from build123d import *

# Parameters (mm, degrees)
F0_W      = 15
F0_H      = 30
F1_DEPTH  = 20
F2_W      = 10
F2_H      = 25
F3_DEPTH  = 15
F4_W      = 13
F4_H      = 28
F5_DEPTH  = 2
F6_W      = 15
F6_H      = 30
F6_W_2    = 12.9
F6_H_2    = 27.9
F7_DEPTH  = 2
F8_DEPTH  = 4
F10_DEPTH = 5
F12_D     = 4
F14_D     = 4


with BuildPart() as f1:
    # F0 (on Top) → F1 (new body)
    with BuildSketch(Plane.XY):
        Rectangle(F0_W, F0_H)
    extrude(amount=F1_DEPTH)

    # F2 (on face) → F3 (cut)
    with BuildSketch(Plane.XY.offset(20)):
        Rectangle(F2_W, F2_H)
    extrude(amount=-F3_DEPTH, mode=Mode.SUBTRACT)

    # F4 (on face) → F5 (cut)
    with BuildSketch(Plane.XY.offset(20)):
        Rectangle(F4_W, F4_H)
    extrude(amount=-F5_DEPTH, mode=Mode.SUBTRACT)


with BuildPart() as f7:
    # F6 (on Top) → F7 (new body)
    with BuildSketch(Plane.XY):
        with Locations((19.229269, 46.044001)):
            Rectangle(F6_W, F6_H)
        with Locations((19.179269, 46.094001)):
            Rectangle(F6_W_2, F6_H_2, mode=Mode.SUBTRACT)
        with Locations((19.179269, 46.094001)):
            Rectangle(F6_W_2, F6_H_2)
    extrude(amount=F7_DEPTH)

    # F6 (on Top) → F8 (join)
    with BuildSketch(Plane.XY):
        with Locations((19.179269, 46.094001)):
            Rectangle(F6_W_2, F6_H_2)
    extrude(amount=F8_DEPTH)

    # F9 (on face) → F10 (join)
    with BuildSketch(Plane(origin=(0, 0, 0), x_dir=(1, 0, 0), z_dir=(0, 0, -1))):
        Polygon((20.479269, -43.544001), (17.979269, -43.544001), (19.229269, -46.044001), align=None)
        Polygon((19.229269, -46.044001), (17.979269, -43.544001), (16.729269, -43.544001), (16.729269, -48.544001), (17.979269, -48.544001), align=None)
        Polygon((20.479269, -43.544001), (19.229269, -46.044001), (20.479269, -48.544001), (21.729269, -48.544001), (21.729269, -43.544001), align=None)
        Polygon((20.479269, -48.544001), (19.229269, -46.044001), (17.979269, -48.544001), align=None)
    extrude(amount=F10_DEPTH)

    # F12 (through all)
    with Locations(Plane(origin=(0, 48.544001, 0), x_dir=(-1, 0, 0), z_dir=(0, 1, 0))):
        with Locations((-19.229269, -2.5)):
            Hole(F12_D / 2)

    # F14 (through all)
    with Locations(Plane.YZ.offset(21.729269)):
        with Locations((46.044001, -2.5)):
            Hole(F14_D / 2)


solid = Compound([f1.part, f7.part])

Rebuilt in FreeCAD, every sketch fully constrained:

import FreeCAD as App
import Part
import Sketcher
Q = App.Units.Quantity


def add_polygon(sketch, points):
    """Adds a closed chain of lines whose ends are joined by coincident constraints."""
    first, n = sketch.GeometryCount, len(points)
    for a, b in zip(points, points[1:] + points[:1]):
        sketch.addGeometry(Part.LineSegment(App.Vector(*a, 0), App.Vector(*b, 0)), False)
    for i in range(n):
        sketch.addConstraint(Sketcher.Constraint("Coincident", first + i, 2, first + (i + 1) % n, 1))

doc = App.newDocument("Part")
body = doc.addObject("PartDesign::Body", "Body")

sketch1 = body.newObject("Sketcher::SketchObject", "Sketch")
sketch1.AttachmentSupport = (doc.getObject("XY_Plane"), [""])
sketch1.MapMode = "FlatFace"
add_polygon(sketch1, [(-8, 15), (-8, -15), (8, -15), (8, 15)])
sketch1.addConstraint([
    Sketcher.Constraint("Vertical", 0),
    Sketcher.Constraint("Horizontal", 1),
    Sketcher.Constraint("Vertical", 2),
    Sketcher.Constraint("Horizontal", 3),
    Sketcher.Constraint("Symmetric", 0, 2, 2, 2, -1, 1),
    Sketcher.Constraint("DistanceX", 1, 1, 1, 2, Q("15 mm")),
    Sketcher.Constraint("DistanceY", 0, 2, 0, 1, Q("30 mm")),
])
pad1 = body.newObject("PartDesign::Pad", "Pad")
pad1.Profile = sketch1
pad1.Length = 20

sketch2 = body.newObject("Sketcher::SketchObject", "Sketch001")
sketch2.AttachmentSupport = (doc.getObject("XY_Plane"), [""])
sketch2.MapMode = "FlatFace"
sketch2.AttachmentOffset = App.Placement(App.Vector(0, 0, 20), App.Rotation())
add_polygon(sketch2, [(-5, 12), (-5, -12), (5, -12), (5, 12)])
sketch2.addConstraint([
    Sketcher.Constraint("Vertical", 0),
    Sketcher.Constraint("Horizontal", 1),
    Sketcher.Constraint("Vertical", 2),
    Sketcher.Constraint("Horizontal", 3),
    Sketcher.Constraint("Symmetric", 0, 2, 2, 2, -1, 1),
    Sketcher.Constraint("DistanceX", 1, 1, 1, 2, Q("10 mm")),
    Sketcher.Constraint("DistanceY", 0, 2, 0, 1, Q("25 mm")),
])
pocket1 = body.newObject("PartDesign::Pocket", "Pocket")
pocket1.Profile = sketch2
pocket1.Length = 15

sketch3 = body.newObject("Sketcher::SketchObject", "Sketch002")
sketch3.AttachmentSupport = (doc.getObject("XY_Plane"), [""])
sketch3.MapMode = "FlatFace"
sketch3.AttachmentOffset = App.Placement(App.Vector(0, 0, 20), App.Rotation())
add_polygon(sketch3, [(-6, 14), (-6, -14), (6, -14), (6, 14)])
sketch3.addConstraint([
    Sketcher.Constraint("Vertical", 0),
    Sketcher.Constraint("Horizontal", 1),
    Sketcher.Constraint("Vertical", 2),
    Sketcher.Constraint("Horizontal", 3),
    Sketcher.Constraint("Symmetric", 0, 2, 2, 2, -1, 1),
    Sketcher.Constraint("DistanceX", 1, 1, 1, 2, Q("13 mm")),
    Sketcher.Constraint("DistanceY", 0, 2, 0, 1, Q("28 mm")),
])
pocket2 = body.newObject("PartDesign::Pocket", "Pocket001")
pocket2.Profile = sketch3
pocket2.Length = 2
body2 = doc.addObject("PartDesign::Body", "Body001")

sketch4 = body2.newObject("Sketcher::SketchObject", "Sketch003")
sketch4.AttachmentSupport = (doc.getObject("XY_Plane001"), [""])
sketch4.MapMode = "FlatFace"
add_polygon(sketch4, [(12, 61), (12, 31), (27, 31), (27, 61)])
sketch4.addConstraint([
    Sketcher.Constraint("Vertical", 0),
    Sketcher.Constraint("Horizontal", 1),
    Sketcher.Constraint("Vertical", 2),
    Sketcher.Constraint("Horizontal", 3),
    Sketcher.Constraint("DistanceX", 1, 1, 1, 2, Q("15 mm")),
    Sketcher.Constraint("DistanceY", 0, 2, 0, 1, Q("30 mm")),
    Sketcher.Constraint("DistanceY", -1, 1, 0, 2, Q("31.044001 mm")),
    Sketcher.Constraint("DistanceX", -1, 1, 0, 2, Q("11.729269 mm")),
])
pad2 = body2.newObject("PartDesign::Pad", "Pad001")
pad2.Profile = sketch4
pad2.Length = 2

sketch5 = body2.newObject("Sketcher::SketchObject", "Sketch004")
sketch5.AttachmentSupport = (doc.getObject("XY_Plane001"), [""])
sketch5.MapMode = "FlatFace"
add_polygon(sketch5, [(13, 60), (13, 32), (26, 32), (26, 60)])
sketch5.addConstraint([
    Sketcher.Constraint("Vertical", 0),
    Sketcher.Constraint("Horizontal", 1),
    Sketcher.Constraint("Vertical", 2),
    Sketcher.Constraint("Horizontal", 3),
    Sketcher.Constraint("DistanceX", 1, 1, 1, 2, Q("12.9 mm")),
    Sketcher.Constraint("DistanceY", 0, 2, 0, 1, Q("27.9 mm")),
    Sketcher.Constraint("DistanceY", -1, 1, 0, 2, Q("32.144001 mm")),
    Sketcher.Constraint("DistanceX", -1, 1, 0, 2, Q("12.729269 mm")),
])
pad3 = body2.newObject("PartDesign::Pad", "Pad002")
pad3.Profile = sketch5
pad3.Length = 4

sketch6 = body2.newObject("Sketcher::SketchObject", "Sketch005")
sketch6.AttachmentSupport = (doc.getObject("XY_Plane001"), [""])
sketch6.MapMode = "FlatFace"
add_polygon(sketch6, [(17, 44), (17, 49), (22, 49), (22, 44)])
sketch6.addConstraint([
    Sketcher.Constraint("Vertical", 0),
    Sketcher.Constraint("Horizontal", 1),
    Sketcher.Constraint("Vertical", 2),
    Sketcher.Constraint("Horizontal", 3),
    Sketcher.Constraint("Equal", 3, 0),
    Sketcher.Constraint("DistanceX", 1, 1, 1, 2, Q("5 mm")),
    Sketcher.Constraint("DistanceY", -1, 1, 0, 2, Q("48.544001 mm")),
    Sketcher.Constraint("DistanceX", -1, 1, 0, 2, Q("16.729269 mm")),
])
pad4 = body2.newObject("PartDesign::Pad", "Pad003")
pad4.Profile = sketch6
pad4.Length = 5
pad4.Reversed = True

sketch7 = body2.newObject("Sketcher::SketchObject", "Sketch006")
sketch7.AttachmentSupport = (doc.getObject("XZ_Plane001"), [""])
sketch7.MapMode = "FlatFace"
sketch7.AttachmentOffset = App.Placement(App.Vector(0, 0, -48.544001), App.Rotation())
sketch7.addGeometry(Part.Circle(App.Vector(19.2, -2.5, 0), App.Vector(0, 0, 1), 2), False)
sketch7.addConstraint([
    Sketcher.Constraint("Diameter", 0, Q("4 mm")),
    Sketcher.Constraint("DistanceY", 0, 3, -1, 1, Q("2.5 mm")),
    Sketcher.Constraint("DistanceX", -1, 1, 0, 3, Q("19.229269 mm")),
])
doc.recompute()
hole = body2.newObject("PartDesign::Hole", "Hole")
hole.Profile = sketch7
hole.ThreadType = "None"
hole.Diameter = 4
hole.DepthType = "ThroughAll"
hole.Reversed = True

sketch8 = body2.newObject("Sketcher::SketchObject", "Sketch007")
sketch8.AttachmentSupport = (doc.getObject("YZ_Plane001"), [""])
sketch8.MapMode = "FlatFace"
sketch8.AttachmentOffset = App.Placement(App.Vector(0, 0, 21.729269), App.Rotation())
sketch8.addGeometry(Part.Circle(App.Vector(46, -2.5, 0), App.Vector(0, 0, 1), 2), False)
sketch8.addConstraint([
    Sketcher.Constraint("Diameter", 0, Q("4 mm")),
    Sketcher.Constraint("DistanceY", 0, 3, -1, 1, Q("2.5 mm")),
    Sketcher.Constraint("DistanceX", -1, 1, 0, 3, Q("46.044001 mm")),
])
doc.recompute()
hole2 = body2.newObject("PartDesign::Hole", "Hole001")
hole2.Profile = sketch8
hole2.ThreadType = "None"
hole2.Diameter = 4
hole2.DepthType = "ThroughAll"

doc.recompute()
